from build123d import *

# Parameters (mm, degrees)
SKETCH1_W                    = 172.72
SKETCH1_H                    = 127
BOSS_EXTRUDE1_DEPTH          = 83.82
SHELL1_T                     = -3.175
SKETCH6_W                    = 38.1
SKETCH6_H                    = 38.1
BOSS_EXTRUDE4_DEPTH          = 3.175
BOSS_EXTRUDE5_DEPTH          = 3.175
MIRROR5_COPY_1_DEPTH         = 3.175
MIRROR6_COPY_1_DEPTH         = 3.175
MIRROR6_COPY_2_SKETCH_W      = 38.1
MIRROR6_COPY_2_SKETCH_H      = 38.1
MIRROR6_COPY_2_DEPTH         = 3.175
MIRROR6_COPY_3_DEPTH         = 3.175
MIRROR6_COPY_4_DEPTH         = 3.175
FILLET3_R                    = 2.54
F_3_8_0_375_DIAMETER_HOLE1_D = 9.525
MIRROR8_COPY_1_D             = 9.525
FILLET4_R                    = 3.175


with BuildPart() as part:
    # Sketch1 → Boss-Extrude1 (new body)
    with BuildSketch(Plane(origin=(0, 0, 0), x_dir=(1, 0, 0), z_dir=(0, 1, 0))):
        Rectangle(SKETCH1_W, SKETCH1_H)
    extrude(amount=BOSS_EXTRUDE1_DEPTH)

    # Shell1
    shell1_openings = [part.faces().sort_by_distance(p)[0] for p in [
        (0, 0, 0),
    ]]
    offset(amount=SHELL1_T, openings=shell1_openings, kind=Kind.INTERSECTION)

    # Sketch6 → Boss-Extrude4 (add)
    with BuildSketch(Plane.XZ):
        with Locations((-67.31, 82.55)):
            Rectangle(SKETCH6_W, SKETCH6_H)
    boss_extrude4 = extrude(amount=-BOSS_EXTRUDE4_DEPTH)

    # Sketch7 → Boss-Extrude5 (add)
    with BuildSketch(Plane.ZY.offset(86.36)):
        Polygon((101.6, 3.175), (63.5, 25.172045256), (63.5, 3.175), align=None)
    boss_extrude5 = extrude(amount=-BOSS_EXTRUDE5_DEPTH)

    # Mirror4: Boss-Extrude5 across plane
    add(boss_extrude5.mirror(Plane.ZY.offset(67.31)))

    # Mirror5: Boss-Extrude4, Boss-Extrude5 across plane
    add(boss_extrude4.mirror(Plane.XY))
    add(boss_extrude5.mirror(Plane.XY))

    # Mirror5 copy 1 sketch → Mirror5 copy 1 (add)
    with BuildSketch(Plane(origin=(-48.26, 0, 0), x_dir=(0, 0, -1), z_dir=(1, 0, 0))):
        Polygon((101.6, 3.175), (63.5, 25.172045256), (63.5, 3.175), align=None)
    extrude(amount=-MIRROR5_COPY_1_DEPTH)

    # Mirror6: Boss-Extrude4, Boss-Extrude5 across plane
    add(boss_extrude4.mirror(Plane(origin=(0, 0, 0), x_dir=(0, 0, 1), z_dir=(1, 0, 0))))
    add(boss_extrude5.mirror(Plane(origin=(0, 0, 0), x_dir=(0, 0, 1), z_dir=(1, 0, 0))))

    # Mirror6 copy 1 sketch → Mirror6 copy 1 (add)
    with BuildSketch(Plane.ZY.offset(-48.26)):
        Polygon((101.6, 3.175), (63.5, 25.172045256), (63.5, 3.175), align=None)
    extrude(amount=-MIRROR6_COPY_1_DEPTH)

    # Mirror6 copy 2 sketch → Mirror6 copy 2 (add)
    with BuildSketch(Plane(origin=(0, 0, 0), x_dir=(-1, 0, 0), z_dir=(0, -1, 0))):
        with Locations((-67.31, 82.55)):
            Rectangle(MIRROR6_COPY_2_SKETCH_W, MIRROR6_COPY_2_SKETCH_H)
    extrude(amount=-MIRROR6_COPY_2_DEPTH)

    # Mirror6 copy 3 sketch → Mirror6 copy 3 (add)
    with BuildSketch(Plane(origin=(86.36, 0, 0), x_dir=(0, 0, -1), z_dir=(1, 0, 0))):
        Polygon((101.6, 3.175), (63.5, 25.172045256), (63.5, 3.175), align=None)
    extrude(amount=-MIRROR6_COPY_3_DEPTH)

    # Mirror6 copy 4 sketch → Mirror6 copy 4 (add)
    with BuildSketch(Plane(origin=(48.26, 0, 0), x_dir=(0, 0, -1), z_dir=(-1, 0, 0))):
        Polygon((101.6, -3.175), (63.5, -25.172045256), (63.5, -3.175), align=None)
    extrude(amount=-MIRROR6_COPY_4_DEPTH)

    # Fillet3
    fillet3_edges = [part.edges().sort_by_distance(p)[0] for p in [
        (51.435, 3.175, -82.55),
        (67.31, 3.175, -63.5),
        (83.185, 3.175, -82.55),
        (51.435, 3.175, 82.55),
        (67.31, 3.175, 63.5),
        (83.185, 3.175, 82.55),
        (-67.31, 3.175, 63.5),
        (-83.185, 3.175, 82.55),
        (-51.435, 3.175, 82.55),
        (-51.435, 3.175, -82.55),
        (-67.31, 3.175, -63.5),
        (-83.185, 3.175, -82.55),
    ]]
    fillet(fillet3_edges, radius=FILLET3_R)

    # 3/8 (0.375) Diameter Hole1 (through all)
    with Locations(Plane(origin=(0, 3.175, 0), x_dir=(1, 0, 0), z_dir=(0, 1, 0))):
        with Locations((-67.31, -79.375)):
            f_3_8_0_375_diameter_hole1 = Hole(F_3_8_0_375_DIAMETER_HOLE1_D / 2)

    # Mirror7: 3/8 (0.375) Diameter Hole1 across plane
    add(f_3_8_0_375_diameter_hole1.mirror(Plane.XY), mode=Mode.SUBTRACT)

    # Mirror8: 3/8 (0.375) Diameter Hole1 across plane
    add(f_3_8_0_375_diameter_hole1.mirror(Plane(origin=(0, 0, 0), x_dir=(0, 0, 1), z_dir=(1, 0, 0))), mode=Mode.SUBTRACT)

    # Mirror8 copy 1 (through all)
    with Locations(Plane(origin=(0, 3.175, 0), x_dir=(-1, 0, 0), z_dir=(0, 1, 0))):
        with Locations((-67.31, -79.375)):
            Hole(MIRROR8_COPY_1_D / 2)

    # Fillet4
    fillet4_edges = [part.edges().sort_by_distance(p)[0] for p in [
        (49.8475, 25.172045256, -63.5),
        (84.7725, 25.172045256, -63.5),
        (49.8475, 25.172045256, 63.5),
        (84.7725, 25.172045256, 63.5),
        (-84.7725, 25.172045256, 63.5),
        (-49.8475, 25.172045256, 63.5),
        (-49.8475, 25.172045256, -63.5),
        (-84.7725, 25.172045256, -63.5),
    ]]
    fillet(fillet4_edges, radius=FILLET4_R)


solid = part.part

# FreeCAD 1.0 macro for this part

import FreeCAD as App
import Part
import Sketcher
Q = App.Units.Quantity


def edges_at(feature, points):
    """Names of the edges that pass closest to the given points."""
    edges = feature.Shape.Edges
    near = lambda p: min(range(len(edges)), key=lambda i: edges[i].distToShape(Part.Vertex(*p))[0])
    return sorted({f"Edge{near(p) + 1}" for p in points})


def faces_at(feature, points):
    """Names of the faces that lie closest to the given points."""
    faces = feature.Shape.Faces
    near = lambda p: min(range(len(faces)), key=lambda i: faces[i].distToShape(Part.Vertex(*p))[0])
    return sorted({f"Face{near(p) + 1}" for p in points})

doc = App.newDocument("Part")
params = doc.addObject("Spreadsheet::Sheet", "Params")
for row, (alias, value) in enumerate([
    ("sketch1_height", "5 in"),
    ("sketch1_width", "6.8 in"),
    ("pad1_length", "3.3 in"),
    ("thickness_wall", "0.125 in"),
    ("sketch2_width", "1.5 in"),
    ("pad2_length", "0.125 in"),
    ("sketch3_height", "1.5 in"),
    ("pad3_length", "0.125 in"),
    ("sketch4_height", "1.5 in"),
    ("pad4_length", "0.125 in"),
    ("sketch5_height", "1.5 in"),
    ("pad5_length", "0.125 in"),
    ("sketch6_width", "1.5 in"),
    ("pad6_length", "0.125 in"),
    ("sketch7_height", "1.5 in"),
    ("pad7_length", "0.125 in"),
    ("sketch8_height", "1.5 in"),
    ("pad8_length", "0.125 in"),
    ("fillet_radius", "0.1 in"),
    ("sketch9_diameter", "0.375 in"),
    ("hole_diameter", "0.375 in"),
    ("sketch10_diameter", "0.375 in"),
    ("hole2_diameter", "0.375 in"),
    ("fillet2_radius", "0.125 in"),
], start=1):
    params.set(f"A{row}", alias)
    params.set(f"B{row}", "=" + value)
    params.setAlias(f"B{row}", alias)

body = doc.addObject("PartDesign::Body", "Body")

# Sketch on XZ plane
sketch1 = body.newObject("Sketcher::SketchObject", "Sketch")
sketch1.AttachmentSupport = (doc.getObject("XZ_Plane"), [""])
sketch1.MapMode = "FlatFace"
sketch1.addGeometry(Part.LineSegment(App.Vector(-86, -64, 0), App.Vector(-86, 64, 0)), False)
sketch1.addGeometry(Part.LineSegment(App.Vector(-86, 64, 0), App.Vector(86, 64, 0)), False)
sketch1.addGeometry(Part.LineSegment(App.Vector(86, 64, 0), App.Vector(86, -64, 0)), False)
sketch1.addGeometry(Part.LineSegment(App.Vector(86, -64, 0), App.Vector(-86, -64, 0)), False)
sketch1.addConstraint(Sketcher.Constraint("Coincident", 0, 2, 1, 1))
sketch1.addConstraint(Sketcher.Constraint("Coincident", 1, 2, 2, 1))
sketch1.addConstraint(Sketcher.Constraint("Coincident", 2, 2, 3, 1))
sketch1.addConstraint(Sketcher.Constraint("Coincident", 3, 2, 0, 1))
sketch1.addConstraint(Sketcher.Constraint("Vertical", 0))
sketch1.addConstraint(Sketcher.Constraint("Horizontal", 1))
sketch1.addConstraint(Sketcher.Constraint("Vertical", 2))
sketch1.addConstraint(Sketcher.Constraint("Horizontal", 3))
sketch1.addConstraint(Sketcher.Constraint("Symmetric", 0, 2, 2, 2, -1, 1))
sketch1.addConstraint(Sketcher.Constraint("DistanceY", 0, 1, 0, 2, Q("5 in")))
sketch1.addConstraint(Sketcher.Constraint("DistanceX", 1, 1, 1, 2, Q("6.8 in")))
sketch1.setExpression("Constraints[9]", "Params.sketch1_height")
sketch1.setExpression("Constraints[10]", "Params.sketch1_width")
pad1 = body.newObject("PartDesign::Pad", "Pad")
pad1.Profile = sketch1
pad1.setExpression("Length", "Params.pad1_length")
pad1.Reversed = True
doc.recompute()

thickness = body.newObject("PartDesign::Thickness", "Thickness")
thickness.Base = (pad1, faces_at(pad1, [(0, 0, 0)]))
thickness.setExpression("Value", "Params.thickness_wall")
thickness.Reversed = True
thickness.Join = "Intersection"

# Sketch on XZ plane
sketch2 = body.newObject("Sketcher::SketchObject", "Sketch001")
sketch2.AttachmentSupport = (doc.getObject("XZ_Plane"), [""])
sketch2.MapMode = "FlatFace"
sketch2.addGeometry(Part.LineSegment(App.Vector(-86, 102, 0), App.Vector(-86, 64, 0)), False)
sketch2.addGeometry(Part.LineSegment(App.Vector(-86, 64, 0), App.Vector(-48, 64, 0)), False)
sketch2.addGeometry(Part.LineSegment(App.Vector(-48, 64, 0), App.Vector(-48, 102, 0)), False)
sketch2.addGeometry(Part.LineSegment(App.Vector(-48, 102, 0), App.Vector(-86, 102, 0)), False)
sketch2.addConstraint(Sketcher.Constraint("Coincident", 0, 2, 1, 1))
sketch2.addConstraint(Sketcher.Constraint("Coincident", 1, 2, 2, 1))
sketch2.addConstraint(Sketcher.Constraint("Coincident", 2, 2, 3, 1))
sketch2.addConstraint(Sketcher.Constraint("Coincident", 3, 2, 0, 1))
sketch2.addConstraint(Sketcher.Constraint("Vertical", 0))
sketch2.addConstraint(Sketcher.Constraint("Horizontal", 1))
sketch2.addConstraint(Sketcher.Constraint("Vertical", 2))
sketch2.addConstraint(Sketcher.Constraint("Horizontal", 3))
sketch2.addConstraint(Sketcher.Constraint("Equal", 3, 0))
sketch2.addConstraint(Sketcher.Constraint("DistanceX", 1, 1, 1, 2, Q("1.5 in")))
sketch2.addConstraint(Sketcher.Constraint("DistanceY", -1, 1, 2, 2, Q("4 in")))
sketch2.addConstraint(Sketcher.Constraint("DistanceX", 0, 2, -1, 1, Q("3.4 in")))
sketch2.setExpression("Constraints[9]", "Params.sketch2_width")
pad2 = body.newObject("PartDesign::Pad", "Pad001")
pad2.Profile = sketch2
pad2.setExpression("Length", "Params.pad2_length")
pad2.Reversed = True

# Sketch on YZ plane
sketch3 = body.newObject("Sketcher::SketchObject", "Sketch002")
sketch3.AttachmentSupport = (doc.getObject("YZ_Plane"), [""])
sketch3.MapMode = "FlatFace"
sketch3.AttachmentOffset = App.Placement(App.Vector(0, 0, -3.4 * 25.4), App.Rotation())
sketch3.addGeometry(Part.LineSegment(App.Vector(3, 102, 0), App.Vector(25, 64, 0)), False)
sketch3.addGeometry(Part.LineSegment(App.Vector(25, 64, 0), App.Vector(3, 64, 0)), False)
sketch3.addGeometry(Part.LineSegment(App.Vector(3, 64, 0), App.Vector(3, 102, 0)), False)
sketch3.addConstraint(Sketcher.Constraint("Coincident", 0, 2, 1, 1))
sketch3.addConstraint(Sketcher.Constraint("Coincident", 1, 2, 2, 1))
sketch3.addConstraint(Sketcher.Constraint("Coincident", 2, 2, 0, 1))
sketch3.addConstraint(Sketcher.Constraint("Horizontal", 1))
sketch3.addConstraint(Sketcher.Constraint("Vertical", 2))
sketch3.addConstraint(Sketcher.Constraint("DistanceY", 2, 1, 2, 2, Q("1.5 in")))
sketch3.addConstraint(Sketcher.Constraint("DistanceY", -1, 1, 2, 2, Q("4 in")))
sketch3.addConstraint(Sketcher.Constraint("Angle", 0, Q("-60 deg")))
sketch3.addConstraint(Sketcher.Constraint("DistanceX", -1, 1, 1, 2, Q("0.125 in")))
sketch3.setExpression("Constraints[5]", "Params.sketch3_height")
pad3 = body.newObject("PartDesign::Pad", "Pad002")
pad3.Profile = sketch3
pad3.setExpression("Length", "Params.pad3_length")
doc.recompute()

datumplane = body.newObject("PartDesign::Plane", "DatumPlane")
datumplane.AttachmentSupport = (doc.getObject("YZ_Plane"), [""])
datumplane.MapMode = "FlatFace"
datumplane.AttachmentOffset = App.Placement(App.Vector(0, 0, -2.65 * 25.4), App.Rotation())
mirrored = body.newObject("PartDesign::Mirrored", "Mirrored")
mirrored.Originals = [pad3]
mirrored.MirrorPlane = (datumplane, [""])
body.Tip = mirrored
doc.recompute()

mirrored2 = body.newObject("PartDesign::Mirrored", "Mirrored001")
mirrored2.Originals = [pad2, pad3]
mirrored2.MirrorPlane = (doc.getObject("XY_Plane"), [""])
body.Tip = mirrored2

# Sketch on YZ plane
sketch4 = body.newObject("Sketcher::SketchObject", "Sketch003")
sketch4.AttachmentSupport = (doc.getObject("YZ_Plane"), [""])
sketch4.MapMode = "FlatFace"
sketch4.AttachmentOffset = App.Placement(App.Vector(0, 0, -1.9 * 25.4), App.Rotation())
sketch4.addGeometry(Part.LineSegment(App.Vector(3, -102, 0), App.Vector(25, -64, 0)), False)
sketch4.addGeometry(Part.LineSegment(App.Vector(25, -64, 0), App.Vector(3, -64, 0)), False)
sketch4.addGeometry(Part.LineSegment(App.Vector(3, -64, 0), App.Vector(3, -102, 0)), False)
sketch4.addConstraint(Sketcher.Constraint("Coincident", 0, 2, 1, 1))
sketch4.addConstraint(Sketcher.Constraint("Coincident", 1, 2, 2, 1))
sketch4.addConstraint(Sketcher.Constraint("Coincident", 2, 2, 0, 1))
sketch4.addConstraint(Sketcher.Constraint("Horizontal", 1))
sketch4.addConstraint(Sketcher.Constraint("Vertical", 2))
sketch4.addConstraint(Sketcher.Constraint("DistanceY", 2, 2, 2, 1, Q("1.5 in")))
sketch4.addConstraint(Sketcher.Constraint("DistanceY", 2, 2, -1, 1, Q("4 in")))
sketch4.addConstraint(Sketcher.Constraint("Angle", 0, Q("60 deg")))
sketch4.addConstraint(Sketcher.Constraint("DistanceX", -1, 1, 1, 2, Q("0.125 in")))
sketch4.setExpression("Constraints[5]", "Params.sketch4_height")
pad4 = body.newObject("PartDesign::Pad", "Pad003")
pad4.Profile = sketch4
pad4.setExpression("Length", "Params.pad4_length")
pad4.Reversed = True
doc.recompute()

mirrored3 = body.newObject("PartDesign::Mirrored", "Mirrored002")
mirrored3.Originals = [pad2, pad3]
mirrored3.MirrorPlane = (doc.getObject("YZ_Plane"), [""])
body.Tip = mirrored3

# Sketch on YZ plane
sketch5 = body.newObject("Sketcher::SketchObject", "Sketch004")
sketch5.AttachmentSupport = (doc.getObject("YZ_Plane"), [""])
sketch5.MapMode = "FlatFace"
sketch5.AttachmentOffset = App.Placement(App.Vector(0, 0, 1.9 * 25.4), App.Rotation())
sketch5.addGeometry(Part.LineSegment(App.Vector(3, 102, 0), App.Vector(25, 64, 0)), False)
sketch5.addGeometry(Part.LineSegment(App.Vector(25, 64, 0), App.Vector(3, 64, 0)), False)
sketch5.addGeometry(Part.LineSegment(App.Vector(3, 64, 0), App.Vector(3, 102, 0)), False)
sketch5.addConstraint(Sketcher.Constraint("Coincident", 0, 2, 1, 1))
sketch5.addConstraint(Sketcher.Constraint("Coincident", 1, 2, 2, 1))
sketch5.addConstraint(Sketcher.Constraint("Coincident", 2, 2, 0, 1))
sketch5.addConstraint(Sketcher.Constraint("Horizontal", 1))
sketch5.addConstraint(Sketcher.Constraint("Vertical", 2))
sketch5.addConstraint(Sketcher.Constraint("DistanceY", 2, 1, 2, 2, Q("1.5 in")))
sketch5.addConstraint(Sketcher.Constraint("DistanceY", -1, 1, 2, 2, Q("4 in")))
sketch5.addConstraint(Sketcher.Constraint("Angle", 0, Q("-60 deg")))
sketch5.addConstraint(Sketcher.Constraint("DistanceX", -1, 1, 1, 2, Q("0.125 in")))
sketch5.setExpression("Constraints[5]", "Params.sketch5_height")
pad5 = body.newObject("PartDesign::Pad", "Pad004")
pad5.Profile = sketch5
pad5.setExpression("Length", "Params.pad5_length")

# Sketch on XZ plane
sketch6 = body.newObject("Sketcher::SketchObject", "Sketch005")
sketch6.AttachmentSupport = (doc.getObject("XZ_Plane"), [""])
sketch6.MapMode = "FlatFace"
sketch6.addGeometry(Part.LineSegment(App.Vector(86, -102, 0), App.Vector(86, -64, 0)), False)
sketch6.addGeometry(Part.LineSegment(App.Vector(86, -64, 0), App.Vector(48, -64, 0)), False)
sketch6.addGeometry(Part.LineSegment(App.Vector(48, -64, 0), App.Vector(48, -102, 0)), False)
sketch6.addGeometry(Part.LineSegment(App.Vector(48, -102, 0), App.Vector(86, -102, 0)), False)
sketch6.addConstraint(Sketcher.Constraint("Coincident", 0, 2, 1, 1))
sketch6.addConstraint(Sketcher.Constraint("Coincident", 1, 2, 2, 1))
sketch6.addConstraint(Sketcher.Constraint("Coincident", 2, 2, 3, 1))
sketch6.addConstraint(Sketcher.Constraint("Coincident", 3, 2, 0, 1))
sketch6.addConstraint(Sketcher.Constraint("Vertical", 0))
sketch6.addConstraint(Sketcher.Constraint("Horizontal", 1))
sketch6.addConstraint(Sketcher.Constraint("Vertical", 2))
sketch6.addConstraint(Sketcher.Constraint("Horizontal", 3))
sketch6.addConstraint(Sketcher.Constraint("Equal", 3, 0))
sketch6.addConstraint(Sketcher.Constraint("DistanceX", 1, 2, 1, 1, Q("1.5 in")))
sketch6.addConstraint(Sketcher.Constraint("DistanceY", 2, 2, -1, 1, Q("4 in")))
sketch6.addConstraint(Sketcher.Constraint("DistanceX", -1, 1, 0, 2, Q("3.4 in")))
sketch6.setExpression("Constraints[9]", "Params.sketch6_width")
pad6 = body.newObject("PartDesign::Pad", "Pad005")
pad6.Profile = sketch6
pad6.setExpression("Length", "Params.pad6_length")
pad6.Reversed = True

# Sketch on YZ plane
sketch7 = body.newObject("Sketcher::SketchObject", "Sketch006")
sketch7.AttachmentSupport = (doc.getObject("YZ_Plane"), [""])
sketch7.MapMode = "FlatFace"
sketch7.AttachmentOffset = App.Placement(App.Vector(0, 0, 3.4 * 25.4), App.Rotation())
sketch7.addGeometry(Part.LineSegment(App.Vector(3, -102, 0), App.Vector(25, -64, 0)), False)
sketch7.addGeometry(Part.LineSegment(App.Vector(25, -64, 0), App.Vector(3, -64, 0)), False)
sketch7.addGeometry(Part.LineSegment(App.Vector(3, -64, 0), App.Vector(3, -102, 0)), False)
sketch7.addConstraint(Sketcher.Constraint("Coincident", 0, 2, 1, 1))
sketch7.addConstraint(Sketcher.Constraint("Coincident", 1, 2, 2, 1))
sketch7.addConstraint(Sketcher.Constraint("Coincident", 2, 2, 0, 1))
sketch7.addConstraint(Sketcher.Constraint("Horizontal", 1))
sketch7.addConstraint(Sketcher.Constraint("Vertical", 2))
sketch7.addConstraint(Sketcher.Constraint("DistanceY", 2, 2, 2, 1, Q("1.5 in")))
sketch7.addConstraint(Sketcher.Constraint("DistanceY", 2, 2, -1, 1, Q("4 in")))
sketch7.addConstraint(Sketcher.Constraint("Angle", 0, Q("60 deg")))
sketch7.addConstraint(Sketcher.Constraint("DistanceX", -1, 1, 1, 2, Q("0.125 in")))
sketch7.setExpression("Constraints[5]", "Params.sketch7_height")
pad7 = body.newObject("PartDesign::Pad", "Pad006")
pad7.Profile = sketch7
pad7.setExpression("Length", "Params.pad7_length")
pad7.Reversed = True

# Sketch on YZ plane
sketch8 = body.newObject("Sketcher::SketchObject", "Sketch007")
sketch8.AttachmentSupport = (doc.getObject("YZ_Plane"), [""])
sketch8.MapMode = "FlatFace"
sketch8.AttachmentOffset = App.Placement(App.Vector(0, 0, 1.9 * 25.4), App.Rotation())
sketch8.addGeometry(Part.LineSegment(App.Vector(25, -64, 0), App.Vector(3, -102, 0)), False)
sketch8.addGeometry(Part.LineSegment(App.Vector(3, -102, 0), App.Vector(3, -64, 0)), False)
sketch8.addGeometry(Part.LineSegment(App.Vector(3, -64, 0), App.Vector(25, -64, 0)), False)
sketch8.addConstraint(Sketcher.Constraint("Coincident", 0, 2, 1, 1))
sketch8.addConstraint(Sketcher.Constraint("Coincident", 1, 2, 2, 1))
sketch8.addConstraint(Sketcher.Constraint("Coincident", 2, 2, 0, 1))
sketch8.addConstraint(Sketcher.Constraint("Vertical", 1))
sketch8.addConstraint(Sketcher.Constraint("Horizontal", 2))
sketch8.addConstraint(Sketcher.Constraint("DistanceY", 1, 1, 1, 2, Q("1.5 in")))
sketch8.addConstraint(Sketcher.Constraint("DistanceY", 0, 2, -1, 1, Q("4 in")))
sketch8.addConstraint(Sketcher.Constraint("Angle", 0, Q("-120 deg")))
sketch8.addConstraint(Sketcher.Constraint("DistanceX", -1, 1, 0, 2, Q("0.125 in")))
sketch8.setExpression("Constraints[5]", "Params.sketch8_height")
pad8 = body.newObject("PartDesign::Pad", "Pad007")
pad8.Profile = sketch8
pad8.setExpression("Length", "Params.pad8_length")
doc.recompute()

fillet = body.newObject("PartDesign::Fillet", "Fillet")
fillet.Base = (pad8, edges_at(pad8, [
    (51.435, 3.175, -82.55),
    (67.31, 3.175, -63.5),
    (83.185, 3.175, -82.55),
    (51.435, 3.175, 82.55),
    (67.31, 3.175, 63.5),
    (83.185, 3.175, 82.55),
    (-67.31, 3.175, 63.5),
    (-83.185, 3.175, 82.55),
    (-51.435, 3.175, 82.55),
    (-51.435, 3.175, -82.55),
    (-67.31, 3.175, -63.5),
    (-83.185, 3.175, -82.55),
]))
fillet.setExpression("Radius", "Params.fillet_radius")

# Sketch on XZ plane
sketch9 = body.newObject("Sketcher::SketchObject", "Sketch008")
sketch9.AttachmentSupport = (doc.getObject("XZ_Plane"), [""])
sketch9.MapMode = "FlatFace"
sketch9.AttachmentOffset = App.Placement(App.Vector(0, 0, -0.125 * 25.4), App.Rotation())
sketch9.addGeometry(Part.Circle(App.Vector(-67.3, 79.4, 0), App.Vector(0, 0, 1), 4.8), False)
sketch9.addConstraint(Sketcher.Constraint("Diameter", 0, Q("0.375 in")))
sketch9.addConstraint(Sketcher.Constraint("DistanceX", 0, 3, -1, 1, Q("2.65 in")))
sketch9.addConstraint(Sketcher.Constraint("DistanceY", -1, 1, 0, 3, Q("3.125 in")))
sketch9.setExpression("Constraints[0]", "Params.sketch9_diameter")
doc.recompute()
hole = body.newObject("PartDesign::Hole", "Hole")
hole.Profile = sketch9
hole.ThreadType = "None"
hole.setExpression("Diameter", "Params.hole_diameter")
hole.DepthType = "ThroughAll"
hole.Reversed = True
doc.recompute()

mirrored4 = body.newObject("PartDesign::Mirrored", "Mirrored003")
mirrored4.Originals = [hole]
mirrored4.MirrorPlane = (doc.getObject("XY_Plane"), [""])
body.Tip = mirrored4
doc.recompute()

mirrored5 = body.newObject("PartDesign::Mirrored", "Mirrored004")
mirrored5.Originals = [hole]
mirrored5.MirrorPlane = (doc.getObject("YZ_Plane"), [""])
body.Tip = mirrored5

# Sketch on XZ plane
sketch10 = body.newObject("Sketcher::SketchObject", "Sketch009")
sketch10.AttachmentSupport = (doc.getObject("XZ_Plane"), [""])
sketch10.MapMode = "FlatFace"
sketch10.AttachmentOffset = App.Placement(App.Vector(0, 0, -0.125 * 25.4), App.Rotation())
sketch10.addGeometry(Part.Circle(App.Vector(67.3, -79.4, 0), App.Vector(0, 0, 1), 4.8), False)
sketch10.addConstraint(Sketcher.Constraint("Diameter", 0, Q("0.375 in")))
sketch10.addConstraint(Sketcher.Constraint("DistanceX", -1, 1, 0, 3, Q("2.65 in")))
sketch10.addConstraint(Sketcher.Constraint("DistanceY", 0, 3, -1, 1, Q("3.125 in")))
sketch10.setExpression("Constraints[0]", "Params.sketch10_diameter")
doc.recompute()
hole2 = body.newObject("PartDesign::Hole", "Hole001")
hole2.Profile = sketch10
hole2.ThreadType = "None"
hole2.setExpression("Diameter", "Params.hole2_diameter")
hole2.DepthType = "ThroughAll"
hole2.Reversed = True
doc.recompute()

fillet2 = body.newObject("PartDesign::Fillet", "Fillet001")
fillet2.Base = (hole2, edges_at(hole2, [
    (49.847, 25.172, -63.5),
    (84.772, 25.172, -63.5),
    (49.847, 25.172, 63.5),
    (84.772, 25.172, 63.5),
    (-84.772, 25.172, 63.5),
    (-49.847, 25.172, 63.5),
    (-49.847, 25.172, -63.5),
    (-84.772, 25.172, -63.5),
]))
fillet2.setExpression("Radius", "Params.fillet2_radius")

doc.recompute()
